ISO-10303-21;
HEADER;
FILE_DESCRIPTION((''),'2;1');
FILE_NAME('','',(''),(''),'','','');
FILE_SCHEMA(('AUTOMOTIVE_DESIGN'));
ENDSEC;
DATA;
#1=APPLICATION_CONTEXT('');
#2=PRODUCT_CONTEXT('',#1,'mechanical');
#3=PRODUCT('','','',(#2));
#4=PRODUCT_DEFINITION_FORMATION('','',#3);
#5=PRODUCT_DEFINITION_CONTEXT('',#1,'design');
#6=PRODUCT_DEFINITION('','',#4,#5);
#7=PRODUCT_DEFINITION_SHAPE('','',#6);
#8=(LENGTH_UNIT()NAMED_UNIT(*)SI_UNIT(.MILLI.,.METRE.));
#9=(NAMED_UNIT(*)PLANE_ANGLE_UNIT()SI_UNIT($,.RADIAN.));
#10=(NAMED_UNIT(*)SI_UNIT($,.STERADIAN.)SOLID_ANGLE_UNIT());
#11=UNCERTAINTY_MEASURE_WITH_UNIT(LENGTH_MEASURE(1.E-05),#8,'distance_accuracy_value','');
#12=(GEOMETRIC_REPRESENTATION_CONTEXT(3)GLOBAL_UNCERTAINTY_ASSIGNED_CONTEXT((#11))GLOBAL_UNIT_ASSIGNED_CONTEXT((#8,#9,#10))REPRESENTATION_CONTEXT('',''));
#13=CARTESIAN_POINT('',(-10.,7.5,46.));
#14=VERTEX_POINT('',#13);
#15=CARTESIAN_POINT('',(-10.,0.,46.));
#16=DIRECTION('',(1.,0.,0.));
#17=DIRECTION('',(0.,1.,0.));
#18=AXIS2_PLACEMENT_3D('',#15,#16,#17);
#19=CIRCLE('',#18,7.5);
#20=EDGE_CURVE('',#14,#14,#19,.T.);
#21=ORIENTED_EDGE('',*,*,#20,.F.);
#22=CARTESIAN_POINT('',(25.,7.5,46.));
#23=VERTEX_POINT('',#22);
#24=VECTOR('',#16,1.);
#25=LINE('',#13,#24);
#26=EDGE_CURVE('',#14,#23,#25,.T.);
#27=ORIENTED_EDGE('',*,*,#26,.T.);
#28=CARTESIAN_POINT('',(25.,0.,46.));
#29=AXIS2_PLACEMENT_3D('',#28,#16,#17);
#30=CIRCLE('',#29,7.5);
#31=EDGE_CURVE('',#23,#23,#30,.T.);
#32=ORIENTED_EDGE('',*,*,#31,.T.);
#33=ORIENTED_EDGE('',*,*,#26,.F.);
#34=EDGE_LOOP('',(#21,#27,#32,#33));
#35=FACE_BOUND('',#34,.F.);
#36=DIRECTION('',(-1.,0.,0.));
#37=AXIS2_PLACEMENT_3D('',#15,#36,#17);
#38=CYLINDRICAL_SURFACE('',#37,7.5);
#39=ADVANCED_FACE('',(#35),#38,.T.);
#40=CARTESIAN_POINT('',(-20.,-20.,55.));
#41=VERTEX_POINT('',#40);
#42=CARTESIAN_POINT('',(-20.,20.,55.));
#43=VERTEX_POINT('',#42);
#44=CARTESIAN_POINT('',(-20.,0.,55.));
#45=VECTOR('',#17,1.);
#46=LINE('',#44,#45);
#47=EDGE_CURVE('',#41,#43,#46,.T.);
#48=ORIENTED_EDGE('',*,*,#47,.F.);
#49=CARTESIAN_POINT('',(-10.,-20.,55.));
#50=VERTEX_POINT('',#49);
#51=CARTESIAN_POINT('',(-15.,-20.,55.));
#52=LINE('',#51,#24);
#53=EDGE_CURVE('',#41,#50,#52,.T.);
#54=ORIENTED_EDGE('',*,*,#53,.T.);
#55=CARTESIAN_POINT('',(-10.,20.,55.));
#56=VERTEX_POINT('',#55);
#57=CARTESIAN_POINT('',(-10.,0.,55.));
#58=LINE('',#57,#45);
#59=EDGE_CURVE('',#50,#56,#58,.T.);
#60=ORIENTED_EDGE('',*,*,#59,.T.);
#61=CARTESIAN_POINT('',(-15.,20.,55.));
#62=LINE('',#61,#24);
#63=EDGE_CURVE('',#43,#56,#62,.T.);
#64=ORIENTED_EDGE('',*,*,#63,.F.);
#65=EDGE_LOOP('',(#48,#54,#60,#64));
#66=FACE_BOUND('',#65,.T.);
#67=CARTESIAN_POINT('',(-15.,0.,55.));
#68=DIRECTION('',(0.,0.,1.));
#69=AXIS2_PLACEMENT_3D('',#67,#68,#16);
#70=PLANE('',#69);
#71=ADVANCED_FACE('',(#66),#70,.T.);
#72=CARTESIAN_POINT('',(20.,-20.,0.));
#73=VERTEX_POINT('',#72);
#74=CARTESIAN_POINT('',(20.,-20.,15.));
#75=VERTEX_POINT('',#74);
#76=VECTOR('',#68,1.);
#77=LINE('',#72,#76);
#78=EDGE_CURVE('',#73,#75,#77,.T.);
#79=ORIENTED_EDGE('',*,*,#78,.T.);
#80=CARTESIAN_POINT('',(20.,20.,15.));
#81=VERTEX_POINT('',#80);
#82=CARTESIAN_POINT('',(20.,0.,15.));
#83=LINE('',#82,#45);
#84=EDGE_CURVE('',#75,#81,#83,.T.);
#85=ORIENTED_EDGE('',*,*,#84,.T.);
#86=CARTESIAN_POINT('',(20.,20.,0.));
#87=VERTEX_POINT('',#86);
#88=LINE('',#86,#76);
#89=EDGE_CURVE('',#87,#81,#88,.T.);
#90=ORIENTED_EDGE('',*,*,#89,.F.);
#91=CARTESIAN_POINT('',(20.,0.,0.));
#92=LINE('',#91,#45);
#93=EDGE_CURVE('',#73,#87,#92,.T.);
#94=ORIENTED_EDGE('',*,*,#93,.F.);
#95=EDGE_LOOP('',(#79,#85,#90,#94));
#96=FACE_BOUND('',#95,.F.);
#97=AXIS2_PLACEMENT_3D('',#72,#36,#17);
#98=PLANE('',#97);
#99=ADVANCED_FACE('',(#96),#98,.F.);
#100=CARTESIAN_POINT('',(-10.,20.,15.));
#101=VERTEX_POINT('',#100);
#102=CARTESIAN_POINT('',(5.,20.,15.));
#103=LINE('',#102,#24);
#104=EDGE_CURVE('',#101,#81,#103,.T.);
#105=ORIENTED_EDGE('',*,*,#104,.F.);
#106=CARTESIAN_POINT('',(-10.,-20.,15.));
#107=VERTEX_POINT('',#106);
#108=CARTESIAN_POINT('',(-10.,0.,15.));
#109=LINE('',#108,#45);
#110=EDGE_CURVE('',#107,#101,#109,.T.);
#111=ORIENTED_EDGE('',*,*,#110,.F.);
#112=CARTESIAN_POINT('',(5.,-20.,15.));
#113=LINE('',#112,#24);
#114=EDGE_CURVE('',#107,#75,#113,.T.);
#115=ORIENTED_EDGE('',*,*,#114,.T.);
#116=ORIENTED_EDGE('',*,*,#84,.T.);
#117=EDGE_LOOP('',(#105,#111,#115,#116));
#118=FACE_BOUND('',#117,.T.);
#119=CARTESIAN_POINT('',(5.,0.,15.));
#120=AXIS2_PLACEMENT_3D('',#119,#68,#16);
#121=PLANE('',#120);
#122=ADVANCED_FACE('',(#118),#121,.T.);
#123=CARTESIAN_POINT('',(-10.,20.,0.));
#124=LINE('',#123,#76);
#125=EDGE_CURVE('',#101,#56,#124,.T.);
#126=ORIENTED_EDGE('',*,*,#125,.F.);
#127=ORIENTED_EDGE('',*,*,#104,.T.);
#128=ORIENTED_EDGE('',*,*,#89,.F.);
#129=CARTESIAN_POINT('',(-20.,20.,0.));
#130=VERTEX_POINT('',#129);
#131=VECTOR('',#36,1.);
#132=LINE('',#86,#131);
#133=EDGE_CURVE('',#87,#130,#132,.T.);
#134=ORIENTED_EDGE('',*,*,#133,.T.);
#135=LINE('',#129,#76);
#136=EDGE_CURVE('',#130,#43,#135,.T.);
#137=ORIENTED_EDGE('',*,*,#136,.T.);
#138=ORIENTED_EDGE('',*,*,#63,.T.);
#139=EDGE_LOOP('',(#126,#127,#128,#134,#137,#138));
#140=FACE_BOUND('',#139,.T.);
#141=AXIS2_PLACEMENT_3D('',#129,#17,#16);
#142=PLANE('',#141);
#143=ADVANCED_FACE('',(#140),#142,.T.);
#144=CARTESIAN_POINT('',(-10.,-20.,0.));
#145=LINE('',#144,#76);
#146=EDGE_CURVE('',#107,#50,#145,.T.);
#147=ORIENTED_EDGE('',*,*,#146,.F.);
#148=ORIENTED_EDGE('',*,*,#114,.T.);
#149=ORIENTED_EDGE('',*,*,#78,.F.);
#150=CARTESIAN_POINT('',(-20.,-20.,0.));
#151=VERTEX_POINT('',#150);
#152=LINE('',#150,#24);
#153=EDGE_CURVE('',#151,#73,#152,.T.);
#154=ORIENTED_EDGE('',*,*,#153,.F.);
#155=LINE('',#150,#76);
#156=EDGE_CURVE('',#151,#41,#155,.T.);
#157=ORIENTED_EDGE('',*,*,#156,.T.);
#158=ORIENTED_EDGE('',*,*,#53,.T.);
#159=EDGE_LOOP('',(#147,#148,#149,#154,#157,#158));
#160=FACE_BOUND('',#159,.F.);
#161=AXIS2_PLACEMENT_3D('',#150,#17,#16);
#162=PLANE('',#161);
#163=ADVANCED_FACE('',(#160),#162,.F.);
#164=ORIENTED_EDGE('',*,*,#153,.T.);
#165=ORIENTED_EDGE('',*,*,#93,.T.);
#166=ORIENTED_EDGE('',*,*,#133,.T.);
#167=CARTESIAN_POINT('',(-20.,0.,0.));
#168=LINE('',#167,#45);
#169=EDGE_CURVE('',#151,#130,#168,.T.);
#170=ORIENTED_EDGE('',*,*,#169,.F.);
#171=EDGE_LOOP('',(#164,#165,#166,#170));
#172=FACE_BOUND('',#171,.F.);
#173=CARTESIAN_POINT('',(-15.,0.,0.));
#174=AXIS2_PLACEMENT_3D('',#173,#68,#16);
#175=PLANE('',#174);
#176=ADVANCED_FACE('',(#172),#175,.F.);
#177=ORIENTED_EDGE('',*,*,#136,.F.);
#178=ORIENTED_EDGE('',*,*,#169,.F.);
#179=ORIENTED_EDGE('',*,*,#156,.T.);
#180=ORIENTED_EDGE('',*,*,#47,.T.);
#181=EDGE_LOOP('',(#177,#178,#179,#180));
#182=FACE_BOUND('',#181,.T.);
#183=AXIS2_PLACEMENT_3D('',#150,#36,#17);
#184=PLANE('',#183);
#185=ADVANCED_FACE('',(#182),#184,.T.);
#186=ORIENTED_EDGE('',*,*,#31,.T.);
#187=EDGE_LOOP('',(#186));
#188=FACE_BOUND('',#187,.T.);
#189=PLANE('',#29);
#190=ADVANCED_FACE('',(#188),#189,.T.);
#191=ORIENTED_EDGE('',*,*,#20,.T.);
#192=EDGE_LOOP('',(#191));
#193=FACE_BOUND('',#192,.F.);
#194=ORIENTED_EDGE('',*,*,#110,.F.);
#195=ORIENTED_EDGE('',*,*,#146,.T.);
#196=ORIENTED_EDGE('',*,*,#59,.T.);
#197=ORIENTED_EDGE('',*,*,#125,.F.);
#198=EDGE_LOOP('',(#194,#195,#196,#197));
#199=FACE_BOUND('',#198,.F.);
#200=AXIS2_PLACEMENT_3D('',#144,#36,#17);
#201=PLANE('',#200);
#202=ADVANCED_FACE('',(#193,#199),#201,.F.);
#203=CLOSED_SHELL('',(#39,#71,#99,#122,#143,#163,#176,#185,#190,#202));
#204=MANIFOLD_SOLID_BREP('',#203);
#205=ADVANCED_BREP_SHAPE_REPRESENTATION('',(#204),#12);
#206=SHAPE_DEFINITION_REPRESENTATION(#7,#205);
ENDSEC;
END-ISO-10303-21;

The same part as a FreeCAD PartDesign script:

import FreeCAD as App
import Part
import Sketcher
from FreeCAD import Vector
Q = App.Units.Quantity


def add_polygon(sketch, points):
    """Adds a closed chain of lines whose ends are joined by coincident constraints."""
    first, n = sketch.GeometryCount, len(points)
    for a, b in zip(points, points[1:] + points[:1]):
        sketch.addGeometry(Part.LineSegment(App.Vector(*a, 0), App.Vector(*b, 0)), False)
    for i in range(n):
        sketch.addConstraint(Sketcher.Constraint("Coincident", first + i, 2, first + (i + 1) % n, 1))

doc = App.newDocument("Part")
body = doc.addObject("PartDesign::Body", "Body")

# Sketch on XY plane
sketch1 = doc.addObject("Sketcher::SketchObject", "Sketch")
body.addObject(sketch1)
sketch1.AttachmentSupport = (doc.XY_Plane, [""])
sketch1.MapMode = "FlatFace"
add_polygon(sketch1, [(-10, 20), (-10, -20), (20, -20), (20, 20)])  # lines 0-3
sketch1.addConstraint([
    Sketcher.Constraint("Vertical", 0),
    Sketcher.Constraint("Horizontal", 1),
    Sketcher.Constraint("Vertical", 2),
    Sketcher.Constraint("Horizontal", 3),
    Sketcher.Constraint("DistanceX", 1, 1, 1, 2, Q("30 mm")),
    Sketcher.Constraint("DistanceY", 0, 2, 0, 1, Q("40 mm")),
    Sketcher.Constraint("DistanceX", 0, 2, -1, 1, Q("10 mm")),
    Sketcher.Constraint("DistanceY", 0, 2, -1, 1, Q("20 mm")),
])
pad1 = doc.addObject("PartDesign::Pad", "Pad")
body.addObject(pad1)
pad1.Profile = sketch1
pad1.Length = 15

# Sketch on XY plane
sketch2 = doc.addObject("Sketcher::SketchObject", "Sketch001")
body.addObject(sketch2)
sketch2.AttachmentSupport = (doc.XY_Plane, [""])
sketch2.MapMode = "FlatFace"
add_polygon(sketch2, [(-20, 20), (-20, -20), (-10, -20), (-10, 20)])  # lines 0-3
sketch2.addConstraint([
    Sketcher.Constraint("Vertical", 0),
    Sketcher.Constraint("Horizontal", 1),
    Sketcher.Constraint("Vertical", 2),
    Sketcher.Constraint("Horizontal", 3),
    Sketcher.Constraint("DistanceX", 1, 1, 1, 2, Q("10 mm")),
    Sketcher.Constraint("DistanceY", 0, 2, 0, 1, Q("40 mm")),
    Sketcher.Constraint("DistanceX", 0, 2, -1, 1, Q("20 mm")),
    Sketcher.Constraint("DistanceY", 0, 2, -1, 1, Q("20 mm")),
])
pad2 = doc.addObject("PartDesign::Pad", "Pad001")
body.addObject(pad2)
pad2.Profile = sketch2
pad2.Length = 55

# Sketch on YZ plane
sketch3 = doc.addObject("Sketcher::SketchObject", "Sketch002")
body.addObject(sketch3)
sketch3.AttachmentSupport = (doc.YZ_Plane, [""])
sketch3.MapMode = "FlatFace"
sketch3.AttachmentOffset = App.Placement(Vector(0, 0, -10), App.Rotation())
sketch3.addGeometry(Part.Circle(Vector(0, 46, 0), Vector(0, 0, 1), 7.5), False)
sketch3.addConstraint([
    Sketcher.Constraint("PointOnObject", 0, 3, -2),
    Sketcher.Constraint("Diameter", 0, Q("15 mm")),
    Sketcher.Constraint("DistanceY", -1, 1, 0, 3, Q("46 mm")),
])
pad3 = doc.addObject("PartDesign::Pad", "Pad002")
body.addObject(pad3)
pad3.Profile = sketch3
pad3.Length = 35

doc.recompute()
